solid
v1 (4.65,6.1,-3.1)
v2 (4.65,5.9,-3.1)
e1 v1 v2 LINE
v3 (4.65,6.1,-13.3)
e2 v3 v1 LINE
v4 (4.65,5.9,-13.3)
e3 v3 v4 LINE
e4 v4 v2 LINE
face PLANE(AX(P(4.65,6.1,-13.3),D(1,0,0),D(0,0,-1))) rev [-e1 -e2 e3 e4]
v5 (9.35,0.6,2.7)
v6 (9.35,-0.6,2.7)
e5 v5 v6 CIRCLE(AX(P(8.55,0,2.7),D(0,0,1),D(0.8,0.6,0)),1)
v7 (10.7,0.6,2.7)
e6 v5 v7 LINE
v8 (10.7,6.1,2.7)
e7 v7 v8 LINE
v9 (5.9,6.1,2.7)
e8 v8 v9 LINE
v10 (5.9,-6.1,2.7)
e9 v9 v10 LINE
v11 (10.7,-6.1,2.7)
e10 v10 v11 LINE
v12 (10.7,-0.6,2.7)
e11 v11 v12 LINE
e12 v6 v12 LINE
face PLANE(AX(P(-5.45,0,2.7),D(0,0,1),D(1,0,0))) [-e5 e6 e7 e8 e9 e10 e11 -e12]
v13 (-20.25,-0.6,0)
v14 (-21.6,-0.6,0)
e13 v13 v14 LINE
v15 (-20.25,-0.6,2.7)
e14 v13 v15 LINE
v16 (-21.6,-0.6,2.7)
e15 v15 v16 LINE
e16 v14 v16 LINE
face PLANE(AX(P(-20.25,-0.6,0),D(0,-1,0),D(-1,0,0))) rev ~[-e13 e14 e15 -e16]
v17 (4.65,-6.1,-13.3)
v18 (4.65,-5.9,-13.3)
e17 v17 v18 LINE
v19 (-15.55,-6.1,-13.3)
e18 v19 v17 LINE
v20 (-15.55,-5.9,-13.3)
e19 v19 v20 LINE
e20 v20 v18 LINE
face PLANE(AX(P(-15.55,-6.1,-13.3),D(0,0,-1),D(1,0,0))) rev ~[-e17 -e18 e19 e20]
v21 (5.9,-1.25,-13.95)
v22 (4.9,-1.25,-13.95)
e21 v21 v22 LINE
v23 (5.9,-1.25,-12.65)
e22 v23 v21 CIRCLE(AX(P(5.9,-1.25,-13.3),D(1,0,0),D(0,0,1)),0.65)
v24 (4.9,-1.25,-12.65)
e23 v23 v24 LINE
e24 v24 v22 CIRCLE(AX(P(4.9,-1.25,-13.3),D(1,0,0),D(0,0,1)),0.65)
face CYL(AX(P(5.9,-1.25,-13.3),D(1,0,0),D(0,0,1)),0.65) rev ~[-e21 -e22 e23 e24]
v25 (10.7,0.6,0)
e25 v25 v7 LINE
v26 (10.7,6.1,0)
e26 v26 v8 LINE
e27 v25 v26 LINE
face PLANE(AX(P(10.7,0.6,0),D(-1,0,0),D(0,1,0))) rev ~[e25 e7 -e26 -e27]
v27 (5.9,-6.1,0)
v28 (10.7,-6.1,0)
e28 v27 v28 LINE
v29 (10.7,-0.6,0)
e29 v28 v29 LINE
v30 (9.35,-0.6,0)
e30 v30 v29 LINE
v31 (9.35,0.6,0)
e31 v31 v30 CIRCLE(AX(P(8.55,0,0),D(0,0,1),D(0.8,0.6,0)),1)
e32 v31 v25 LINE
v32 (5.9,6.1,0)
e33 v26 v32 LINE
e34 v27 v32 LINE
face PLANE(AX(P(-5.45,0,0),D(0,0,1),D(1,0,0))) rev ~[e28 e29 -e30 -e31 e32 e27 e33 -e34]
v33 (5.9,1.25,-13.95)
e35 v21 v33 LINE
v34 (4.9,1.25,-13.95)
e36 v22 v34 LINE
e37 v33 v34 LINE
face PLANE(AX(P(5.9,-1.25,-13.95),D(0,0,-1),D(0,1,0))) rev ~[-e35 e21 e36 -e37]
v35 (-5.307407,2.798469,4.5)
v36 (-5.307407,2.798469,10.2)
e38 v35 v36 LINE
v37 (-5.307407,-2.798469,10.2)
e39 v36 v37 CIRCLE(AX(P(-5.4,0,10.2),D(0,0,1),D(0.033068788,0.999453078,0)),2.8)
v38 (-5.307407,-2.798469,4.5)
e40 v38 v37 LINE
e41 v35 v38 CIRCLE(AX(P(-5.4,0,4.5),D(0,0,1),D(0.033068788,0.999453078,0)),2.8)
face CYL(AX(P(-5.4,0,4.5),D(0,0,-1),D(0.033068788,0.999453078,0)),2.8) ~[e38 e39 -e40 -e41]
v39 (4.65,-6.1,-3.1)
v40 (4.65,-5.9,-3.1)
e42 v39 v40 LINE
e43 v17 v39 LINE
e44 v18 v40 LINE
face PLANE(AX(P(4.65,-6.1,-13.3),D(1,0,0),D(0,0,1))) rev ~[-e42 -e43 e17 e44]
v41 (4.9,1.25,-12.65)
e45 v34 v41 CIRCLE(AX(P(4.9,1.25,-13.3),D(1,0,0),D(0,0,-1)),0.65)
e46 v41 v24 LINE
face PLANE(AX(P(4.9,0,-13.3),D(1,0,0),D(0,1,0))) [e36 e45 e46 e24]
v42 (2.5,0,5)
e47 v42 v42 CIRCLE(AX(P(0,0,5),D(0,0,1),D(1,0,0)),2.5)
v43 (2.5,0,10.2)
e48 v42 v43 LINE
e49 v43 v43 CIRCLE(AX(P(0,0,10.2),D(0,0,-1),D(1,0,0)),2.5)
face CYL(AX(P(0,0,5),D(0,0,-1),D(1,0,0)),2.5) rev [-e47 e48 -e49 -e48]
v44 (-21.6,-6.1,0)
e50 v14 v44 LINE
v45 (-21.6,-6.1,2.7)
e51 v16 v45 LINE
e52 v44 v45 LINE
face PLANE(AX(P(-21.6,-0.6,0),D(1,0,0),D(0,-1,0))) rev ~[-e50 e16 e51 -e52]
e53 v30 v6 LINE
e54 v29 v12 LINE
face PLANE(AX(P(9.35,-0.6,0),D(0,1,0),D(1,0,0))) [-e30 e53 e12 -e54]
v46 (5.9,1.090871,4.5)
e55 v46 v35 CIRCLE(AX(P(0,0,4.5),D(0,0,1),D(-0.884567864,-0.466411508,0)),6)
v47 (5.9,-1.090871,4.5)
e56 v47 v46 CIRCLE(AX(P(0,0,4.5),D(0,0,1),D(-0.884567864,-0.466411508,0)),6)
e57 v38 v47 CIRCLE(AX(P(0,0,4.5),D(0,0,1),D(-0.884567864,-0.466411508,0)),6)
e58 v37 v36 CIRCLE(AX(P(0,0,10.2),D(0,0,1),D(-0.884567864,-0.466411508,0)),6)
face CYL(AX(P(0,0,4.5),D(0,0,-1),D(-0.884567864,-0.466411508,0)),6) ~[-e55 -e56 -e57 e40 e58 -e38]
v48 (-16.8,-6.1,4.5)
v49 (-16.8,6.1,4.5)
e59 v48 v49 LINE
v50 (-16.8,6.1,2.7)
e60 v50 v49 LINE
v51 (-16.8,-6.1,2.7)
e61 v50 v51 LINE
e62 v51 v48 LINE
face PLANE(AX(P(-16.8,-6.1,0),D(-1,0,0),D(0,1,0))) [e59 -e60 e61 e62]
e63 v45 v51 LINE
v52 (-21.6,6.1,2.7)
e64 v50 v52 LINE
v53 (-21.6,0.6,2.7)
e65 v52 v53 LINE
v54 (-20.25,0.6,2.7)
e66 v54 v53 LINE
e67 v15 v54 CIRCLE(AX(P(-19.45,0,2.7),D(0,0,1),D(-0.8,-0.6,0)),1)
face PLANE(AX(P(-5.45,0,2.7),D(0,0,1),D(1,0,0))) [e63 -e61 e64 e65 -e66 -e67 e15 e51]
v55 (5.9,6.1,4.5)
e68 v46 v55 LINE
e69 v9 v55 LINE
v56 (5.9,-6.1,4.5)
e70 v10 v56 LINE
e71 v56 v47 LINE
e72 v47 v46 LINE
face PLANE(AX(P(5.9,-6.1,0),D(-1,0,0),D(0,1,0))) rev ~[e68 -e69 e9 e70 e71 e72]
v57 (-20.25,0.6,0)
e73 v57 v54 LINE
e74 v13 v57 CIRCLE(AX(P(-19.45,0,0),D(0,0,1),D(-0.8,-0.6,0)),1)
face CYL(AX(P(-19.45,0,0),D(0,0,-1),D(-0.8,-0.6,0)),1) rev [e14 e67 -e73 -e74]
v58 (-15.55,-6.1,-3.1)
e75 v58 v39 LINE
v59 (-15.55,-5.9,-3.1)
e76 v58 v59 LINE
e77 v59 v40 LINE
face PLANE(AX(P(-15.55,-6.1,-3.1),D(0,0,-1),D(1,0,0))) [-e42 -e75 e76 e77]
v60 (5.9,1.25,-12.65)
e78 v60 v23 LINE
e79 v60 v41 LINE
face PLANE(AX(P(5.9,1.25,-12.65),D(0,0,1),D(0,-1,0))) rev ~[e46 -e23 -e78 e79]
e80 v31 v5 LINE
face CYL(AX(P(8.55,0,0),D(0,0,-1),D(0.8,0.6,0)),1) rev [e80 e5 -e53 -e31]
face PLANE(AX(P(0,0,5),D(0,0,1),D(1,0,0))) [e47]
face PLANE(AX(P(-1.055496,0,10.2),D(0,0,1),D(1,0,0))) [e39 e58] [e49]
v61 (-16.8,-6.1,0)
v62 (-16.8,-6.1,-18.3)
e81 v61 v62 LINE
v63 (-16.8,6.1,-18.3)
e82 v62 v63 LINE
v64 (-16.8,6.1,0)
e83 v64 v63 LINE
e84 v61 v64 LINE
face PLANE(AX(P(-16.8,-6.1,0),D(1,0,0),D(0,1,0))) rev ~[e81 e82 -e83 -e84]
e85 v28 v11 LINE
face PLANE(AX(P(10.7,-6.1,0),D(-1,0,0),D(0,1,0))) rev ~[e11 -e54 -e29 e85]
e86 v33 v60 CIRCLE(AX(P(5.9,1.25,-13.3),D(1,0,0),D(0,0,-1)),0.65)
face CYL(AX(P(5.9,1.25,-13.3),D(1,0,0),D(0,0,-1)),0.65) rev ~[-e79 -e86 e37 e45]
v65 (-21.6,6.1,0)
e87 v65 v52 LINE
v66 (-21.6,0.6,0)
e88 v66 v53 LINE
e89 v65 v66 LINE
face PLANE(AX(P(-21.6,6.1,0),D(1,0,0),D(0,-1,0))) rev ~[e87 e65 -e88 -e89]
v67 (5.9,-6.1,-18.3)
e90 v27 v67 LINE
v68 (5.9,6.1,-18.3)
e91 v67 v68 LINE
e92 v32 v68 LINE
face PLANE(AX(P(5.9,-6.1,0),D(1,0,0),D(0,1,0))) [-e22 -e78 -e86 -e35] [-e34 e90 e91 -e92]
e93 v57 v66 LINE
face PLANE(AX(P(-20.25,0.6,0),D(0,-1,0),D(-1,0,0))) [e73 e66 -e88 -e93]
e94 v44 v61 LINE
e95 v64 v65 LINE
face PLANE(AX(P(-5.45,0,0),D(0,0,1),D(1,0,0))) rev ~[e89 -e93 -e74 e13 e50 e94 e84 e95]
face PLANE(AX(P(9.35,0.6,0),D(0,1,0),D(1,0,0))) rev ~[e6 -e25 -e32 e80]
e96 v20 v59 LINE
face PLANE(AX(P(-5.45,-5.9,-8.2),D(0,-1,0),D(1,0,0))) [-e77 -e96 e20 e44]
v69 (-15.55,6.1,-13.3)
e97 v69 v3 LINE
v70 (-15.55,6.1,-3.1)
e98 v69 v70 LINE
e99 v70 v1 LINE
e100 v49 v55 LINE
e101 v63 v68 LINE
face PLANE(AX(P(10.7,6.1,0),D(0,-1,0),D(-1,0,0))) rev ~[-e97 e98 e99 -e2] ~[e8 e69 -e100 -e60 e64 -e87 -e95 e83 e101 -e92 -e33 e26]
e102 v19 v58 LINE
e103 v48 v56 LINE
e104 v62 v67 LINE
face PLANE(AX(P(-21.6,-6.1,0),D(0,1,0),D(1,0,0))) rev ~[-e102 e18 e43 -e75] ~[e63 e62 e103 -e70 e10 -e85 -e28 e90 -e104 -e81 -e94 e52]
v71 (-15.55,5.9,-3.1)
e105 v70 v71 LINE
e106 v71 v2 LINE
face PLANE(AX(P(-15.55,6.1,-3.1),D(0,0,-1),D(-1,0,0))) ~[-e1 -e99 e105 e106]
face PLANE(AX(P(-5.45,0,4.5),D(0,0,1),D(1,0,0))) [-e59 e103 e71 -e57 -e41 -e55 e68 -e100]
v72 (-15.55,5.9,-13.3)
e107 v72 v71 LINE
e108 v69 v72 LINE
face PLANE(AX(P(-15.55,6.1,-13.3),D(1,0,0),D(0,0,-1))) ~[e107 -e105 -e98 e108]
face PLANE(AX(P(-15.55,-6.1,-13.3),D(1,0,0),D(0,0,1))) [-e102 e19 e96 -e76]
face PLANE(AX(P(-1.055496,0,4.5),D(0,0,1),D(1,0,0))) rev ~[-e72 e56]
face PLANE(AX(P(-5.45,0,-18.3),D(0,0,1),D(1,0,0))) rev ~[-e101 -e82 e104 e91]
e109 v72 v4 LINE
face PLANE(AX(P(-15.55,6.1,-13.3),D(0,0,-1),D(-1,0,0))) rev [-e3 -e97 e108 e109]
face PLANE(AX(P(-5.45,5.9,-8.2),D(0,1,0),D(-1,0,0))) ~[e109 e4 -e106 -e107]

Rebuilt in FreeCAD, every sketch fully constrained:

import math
import FreeCAD as App
import Part
import Sketcher

V = App.Vector


def add_polygon(sketch, points):
    """Adds a closed chain of lines whose ends are joined by coincident constraints."""
    first, n = sketch.GeometryCount, len(points)
    for a, b in zip(points, points[1:] + points[:1]):
        sketch.addGeometry(Part.LineSegment(App.Vector(*a, 0), App.Vector(*b, 0)), False)
    for i in range(n):
        sketch.addConstraint(Sketcher.Constraint("Coincident", first + i, 2, first + (i + 1) % n, 1))

doc = App.newDocument("Part")
body = doc.addObject("PartDesign::Body", "Body")

# Sketch on XY plane
sketch1 = body.newObject("Sketcher::SketchObject", "Sketch")
sketch1.AttachmentSupport = (doc.getObject("XY_Plane"), [""])
sketch1.MapMode = "FlatFace"
add_polygon(sketch1, [(-17, 6), (-17, -6), (6, -6), (6, 6)])  # lines 0-3
sketch1.addConstraint(Sketcher.Constraint("Vertical", 0))
sketch1.addConstraint(Sketcher.Constraint("Horizontal", 1))
sketch1.addConstraint(Sketcher.Constraint("Vertical", 2))
sketch1.addConstraint(Sketcher.Constraint("Horizontal", 3))
sketch1.addConstraint(Sketcher.Constraint("DistanceX", 1, 1, 1, 2, 22.7))
sketch1.addConstraint(Sketcher.Constraint("DistanceY", 0, 2, 0, 1, 12.2))
sketch1.addConstraint(Sketcher.Constraint("DistanceX", 0, 2, -1, 1, 16.8))
sketch1.addConstraint(Sketcher.Constraint("DistanceY", 0, 2, -1, 1, 6.1))
pad1 = body.newObject("PartDesign::Pad", "Pad")
pad1.Profile = sketch1
pad1.Length = 18.3
pad1.Reversed = True

# Sketch on XY plane
sketch2 = body.newObject("Sketcher::SketchObject", "Sketch001")
sketch2.AttachmentSupport = (doc.getObject("XY_Plane"), [""])
sketch2.MapMode = "FlatFace"
sketch2.addGeometry(Part.LineSegment(V(-21.6, 6.1, 0), V(-21.6, 0.6, 0)), False)
sketch2.addGeometry(Part.LineSegment(V(-21.6, 0.6, 0), V(-20.2, 0.6, 0)), False)
sketch2.addGeometry(Part.ArcOfCircle(Part.Circle(V(-19.4, 0, 0), V(0, 0, 1), 1), math.radians(-143), math.radians(143)), False)
sketch2.addGeometry(Part.LineSegment(V(-20.2, -0.6, 0), V(-21.6, -0.6, 0)), False)
sketch2.addGeometry(Part.LineSegment(V(-21.6, -0.6, 0), V(-21.6, -6.1, 0)), False)
sketch2.addGeometry(Part.LineSegment(V(-21.6, -6.1, 0), V(10.7, -6.1, 0)), False)
sketch2.addGeometry(Part.LineSegment(V(10.7, -6.1, 0), V(10.7, -0.6, 0)), False)
sketch2.addGeometry(Part.LineSegment(V(10.7, -0.6, 0), V(9.3, -0.6, 0)), False)
sketch2.addGeometry(Part.ArcOfCircle(Part.Circle(V(8.6, 0, 0), V(0, 0, 1), 1), math.radians(37), math.radians(323)), False)
sketch2.addGeometry(Part.LineSegment(V(9.3, 0.6, 0), V(10.7, 0.6, 0)), False)
sketch2.addGeometry(Part.LineSegment(V(10.7, 0.6, 0), V(10.7, 6.1, 0)), False)
sketch2.addGeometry(Part.LineSegment(V(10.7, 6.1, 0), V(-21.6, 6.1, 0)), False)
sketch2.addConstraint(Sketcher.Constraint("Coincident", 0, 2, 1, 1))
sketch2.addConstraint(Sketcher.Constraint("Coincident", 1, 2, 2, 2))
sketch2.addConstraint(Sketcher.Constraint("Coincident", 2, 1, 3, 1))
sketch2.addConstraint(Sketcher.Constraint("Coincident", 3, 2, 4, 1))
sketch2.addConstraint(Sketcher.Constraint("Coincident", 4, 2, 5, 1))
sketch2.addConstraint(Sketcher.Constraint("Coincident", 5, 2, 6, 1))
sketch2.addConstraint(Sketcher.Constraint("Coincident", 6, 2, 7, 1))
sketch2.addConstraint(Sketcher.Constraint("Coincident", 7, 2, 8, 2))
sketch2.addConstraint(Sketcher.Constraint("Coincident", 8, 1, 9, 1))
sketch2.addConstraint(Sketcher.Constraint("Coincident", 9, 2, 10, 1))
sketch2.addConstraint(Sketcher.Constraint("Coincident", 10, 2, 11, 1))
sketch2.addConstraint(Sketcher.Constraint("Coincident", 11, 2, 0, 1))
sketch2.addConstraint(Sketcher.Constraint("Vertical", 0))
sketch2.addConstraint(Sketcher.Constraint("Horizontal", 1))
sketch2.addConstraint(Sketcher.Constraint("Horizontal", 3))
sketch2.addConstraint(Sketcher.Constraint("Vertical", 4))
sketch2.addConstraint(Sketcher.Constraint("Horizontal", 5))
sketch2.addConstraint(Sketcher.Constraint("Vertical", 6))
sketch2.addConstraint(Sketcher.Constraint("Horizontal", 7))
sketch2.addConstraint(Sketcher.Constraint("Horizontal", 9))
sketch2.addConstraint(Sketcher.Constraint("Vertical", 10))
sketch2.addConstraint(Sketcher.Constraint("Horizontal", 11))
sketch2.addConstraint(Sketcher.Constraint("Equal", 2, 8))
sketch2.addConstraint(Sketcher.Constraint("Symmetric", 1, 2, 2, 1, -1))
sketch2.addConstraint(Sketcher.Constraint("Symmetric", 7, 2, 8, 1, -1))
sketch2.addConstraint(Sketcher.Constraint("Symmetric", 5, 2, 10, 2, -1))
sketch2.addConstraint(Sketcher.Constraint("Horizontal", 3, 2, 6, 2))
sketch2.addConstraint(Sketcher.Constraint("Vertical", 0, 2, 3, 2))
sketch2.addConstraint(Sketcher.Constraint("Equal", 3, 7))
sketch2.addConstraint(Sketcher.Constraint("Radius", 2, 1.0))
sketch2.addConstraint(Sketcher.Constraint("DistanceX", 5, 1, 5, 2, 32.3))
sketch2.addConstraint(Sketcher.Constraint("DistanceY", 0, 2, 0, 1, 5.5))
sketch2.addConstraint(Sketcher.Constraint("DistanceX", 2, 3, 8, 3, 28.0))
sketch2.addConstraint(Sketcher.Constraint("DistanceX", 1, 1, 1, 2, 1.35))
sketch2.addConstraint(Sketcher.Constraint("DistanceX", 0, 2, -1, 1, 21.6))
pad2 = body.newObject("PartDesign::Pad", "Pad001")
pad2.Profile = sketch2
pad2.Length = 2.7

# Sketch on XY plane
sketch3 = body.newObject("Sketcher::SketchObject", "Sketch002")
sketch3.AttachmentSupport = (doc.getObject("XY_Plane"), [""])
sketch3.MapMode = "FlatFace"
add_polygon(sketch3, [(-17, 6), (-17, -6), (6, -6), (6, 6)])  # lines 0-3
sketch3.addConstraint(Sketcher.Constraint("Vertical", 0))
sketch3.addConstraint(Sketcher.Constraint("Horizontal", 1))
sketch3.addConstraint(Sketcher.Constraint("Vertical", 2))
sketch3.addConstraint(Sketcher.Constraint("Horizontal", 3))
sketch3.addConstraint(Sketcher.Constraint("DistanceX", 1, 1, 1, 2, 22.7))
sketch3.addConstraint(Sketcher.Constraint("DistanceY", 0, 2, 0, 1, 12.2))
sketch3.addConstraint(Sketcher.Constraint("DistanceX", 0, 2, -1, 1, 16.8))
sketch3.addConstraint(Sketcher.Constraint("DistanceY", 0, 2, -1, 1, 6.1))
pad3 = body.newObject("PartDesign::Pad", "Pad002")
pad3.Profile = sketch3
pad3.Length = 4.5

# Sketch on XY plane
sketch4 = body.newObject("Sketcher::SketchObject", "Sketch003")
sketch4.AttachmentSupport = (doc.getObject("XY_Plane"), [""])
sketch4.MapMode = "FlatFace"
sketch4.AttachmentOffset = App.Placement(V(0, 0, 4.5), App.Rotation())
sketch4.addGeometry(Part.ArcOfCircle(Part.Circle(V(0, 0, 0), V(0, 0, 1), 6), math.radians(-152), math.radians(152)), False)
sketch4.addGeometry(Part.ArcOfCircle(Part.Circle(V(-5.4, 0, 0), V(0, 0, 1), 2.8), math.radians(88), math.radians(272)), False)
sketch4.addConstraint(Sketcher.Constraint("Coincident", 0, 1, 1, 2))
sketch4.addConstraint(Sketcher.Constraint("Coincident", 1, 1, 0, 2))
sketch4.addConstraint(Sketcher.Constraint("Coincident", 0, 3, -1, 1))
sketch4.addConstraint(Sketcher.Constraint("PointOnObject", 1, 3, -1))
sketch4.addConstraint(Sketcher.Constraint("Radius", 0, 6.0))
sketch4.addConstraint(Sketcher.Constraint("Radius", 1, 2.8))
sketch4.addConstraint(Sketcher.Constraint("DistanceX", 1, 3, -1, 1, 5.4))
pad4 = body.newObject("PartDesign::Pad", "Pad003")
pad4.Profile = sketch4
pad4.Length = 5.7

# Sketch on XY plane
sketch5 = body.newObject("Sketcher::SketchObject", "Sketch004")
sketch5.AttachmentSupport = (doc.getObject("XY_Plane"), [""])
sketch5.MapMode = "FlatFace"
sketch5.AttachmentOffset = App.Placement(V(0, 0, 5), App.Rotation())
sketch5.addGeometry(Part.Circle(V(0, 0, 0), V(0, 0, 1), 2.5), False)
sketch5.addConstraint(Sketcher.Constraint("Coincident", 0, 3, -1, 1))
sketch5.addConstraint(Sketcher.Constraint("Diameter", 0, 5.0))
pocket1 = body.newObject("PartDesign::Pocket", "Pocket")
pocket1.Profile = sketch5
pocket1.Length = 10
pocket1.Reversed = True

# Sketch on YZ plane
sketch6 = body.newObject("Sketcher::SketchObject", "Sketch005")
sketch6.AttachmentSupport = (doc.getObject("YZ_Plane"), [""])
sketch6.MapMode = "FlatFace"
sketch6.AttachmentOffset = App.Placement(V(0, 0, 5.9), App.Rotation())
sketch6.addGeometry(Part.ArcOfCircle(Part.Circle(V(-1.2, -13.3, 0), V(0, 0, 1), 0.7), math.radians(90), math.radians(270)), False)
sketch6.addGeometry(Part.LineSegment(V(-1.2, -13.9, 0), V(1.2, -13.9, 0)), False)
sketch6.addGeometry(Part.ArcOfCircle(Part.Circle(V(1.2, -13.3, 0), V(0, 0, 1), 0.7), math.radians(-90), math.radians(90)), False)
sketch6.addGeometry(Part.LineSegment(V(1.2, -12.7, 0), V(-1.2, -12.7, 0)), False)
sketch6.addConstraint(Sketcher.Constraint("Tangent", 0, 2, 1, 1))
sketch6.addConstraint(Sketcher.Constraint("Tangent", 1, 2, 2, 1))
sketch6.addConstraint(Sketcher.Constraint("Tangent", 2, 2, 3, 1))
sketch6.addConstraint(Sketcher.Constraint("Tangent", 3, 2, 0, 1))
sketch6.addConstraint(Sketcher.Constraint("Horizontal", 1))
sketch6.addConstraint(Sketcher.Constraint("Horizontal", 3))
sketch6.addConstraint(Sketcher.Constraint("Radius", 0, 0.65))
sketch6.addConstraint(Sketcher.Constraint("DistanceX", 1, 1, 1, 2, 2.5))
sketch6.addConstraint(Sketcher.Constraint("DistanceY", 0, 3, -1, 1, 13.3))
sketch6.addConstraint(Sketcher.Constraint("DistanceX", 0, 3, -1, 1, 1.25))
pocket2 = body.newObject("PartDesign::Pocket", "Pocket001")
pocket2.Profile = sketch6
pocket2.Length = 1

# Sketch on XZ plane
sketch7 = body.newObject("Sketcher::SketchObject", "Sketch006")
sketch7.AttachmentSupport = (doc.getObject("XZ_Plane"), [""])
sketch7.MapMode = "FlatFace"
sketch7.AttachmentOffset = App.Placement(V(0, 0, 6.1), App.Rotation())
add_polygon(sketch7, [(-16, -3), (-16, -13), (5, -13), (5, -3)])  # lines 0-3
sketch7.addConstraint(Sketcher.Constraint("Vertical", 0))
sketch7.addConstraint(Sketcher.Constraint("Horizontal", 1))
sketch7.addConstraint(Sketcher.Constraint("Vertical", 2))
sketch7.addConstraint(Sketcher.Constraint("Horizontal", 3))
sketch7.addConstraint(Sketcher.Constraint("DistanceX", 1, 1, 1, 2, 20.2))
sketch7.addConstraint(Sketcher.Constraint("DistanceY", 0, 2, 0, 1, 10.2))
sketch7.addConstraint(Sketcher.Constraint("DistanceY", 0, 2, -1, 1, 13.3))
sketch7.addConstraint(Sketcher.Constraint("DistanceX", 0, 2, -1, 1, 15.55))
pocket3 = body.newObject("PartDesign::Pocket", "Pocket002")
pocket3.Profile = sketch7
pocket3.Length = 0.2
doc.recompute()

mirrored = body.newObject("PartDesign::Mirrored", "Mirrored")
mirrored.Originals = [pocket3]
mirrored.MirrorPlane = (doc.getObject("XZ_Plane"), [""])
body.Tip = mirrored

doc.recompute()
